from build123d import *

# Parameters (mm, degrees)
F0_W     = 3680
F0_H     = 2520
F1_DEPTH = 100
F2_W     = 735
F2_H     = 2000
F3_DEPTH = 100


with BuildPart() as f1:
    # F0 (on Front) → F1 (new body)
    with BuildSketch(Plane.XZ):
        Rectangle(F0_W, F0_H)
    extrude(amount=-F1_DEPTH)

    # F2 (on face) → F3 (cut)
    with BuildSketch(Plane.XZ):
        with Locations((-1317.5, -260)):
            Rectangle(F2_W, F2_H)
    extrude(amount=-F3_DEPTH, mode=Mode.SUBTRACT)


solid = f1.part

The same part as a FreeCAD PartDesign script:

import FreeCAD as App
import Part
import Sketcher

doc = App.newDocument("Part")
body = doc.addObject("PartDesign::Body", "Body")

sketch1 = body.newObject("Sketcher::SketchObject", "Sketch")
sketch1.AttachmentSupport = (doc.getObject("XZ_Plane"), [""])
sketch1.MapMode = "FlatFace"
sketch1.addGeometry(Part.LineSegment(App.Vector(-1840, 1260, 0), App.Vector(-1840, -1260, 0)), False)
sketch1.addGeometry(Part.LineSegment(App.Vector(-1840, -1260, 0), App.Vector(1840, -1260, 0)), False)
sketch1.addGeometry(Part.LineSegment(App.Vector(1840, -1260, 0), App.Vector(1840, 1260, 0)), False)
sketch1.addGeometry(Part.LineSegment(App.Vector(1840, 1260, 0), App.Vector(-1840, 1260, 0)), False)
sketch1.addConstraint(Sketcher.Constraint("Coincident", 0, 2, 1, 1))
sketch1.addConstraint(Sketcher.Constraint("Coincident", 1, 2, 2, 1))
sketch1.addConstraint(Sketcher.Constraint("Coincident", 2, 2, 3, 1))
sketch1.addConstraint(Sketcher.Constraint("Coincident", 3, 2, 0, 1))
sketch1.addConstraint(Sketcher.Constraint("Vertical", 0))
sketch1.addConstraint(Sketcher.Constraint("Horizontal", 1))
sketch1.addConstraint(Sketcher.Constraint("Vertical", 2))
sketch1.addConstraint(Sketcher.Constraint("Horizontal", 3))
sketch1.addConstraint(Sketcher.Constraint("Symmetric", 0, 2, 2, 2, -1, 1))
sketch1.addConstraint(Sketcher.Constraint("DistanceX", 1, 1, 1, 2, 3680.0))
sketch1.addConstraint(Sketcher.Constraint("DistanceY", 0, 2, 0, 1, 2520.0))
pad1 = body.newObject("PartDesign::Pad", "Pad")
pad1.Profile = sketch1
pad1.Length = 100
pad1.Reversed = True

sketch2 = body.newObject("Sketcher::SketchObject", "Sketch001")
sketch2.AttachmentSupport = (doc.getObject("XZ_Plane"), [""])
sketch2.MapMode = "FlatFace"
sketch2.addGeometry(Part.LineSegment(App.Vector(-1685, 740, 0), App.Vector(-1685, -1260, 0)), False)
sketch2.addGeometry(Part.LineSegment(App.Vector(-1685, -1260, 0), App.Vector(-950, -1260, 0)), False)
sketch2.addGeometry(Part.LineSegment(App.Vector(-950, -1260, 0), App.Vector(-950, 740, 0)), False)
sketch2.addGeometry(Part.LineSegment(App.Vector(-950, 740, 0), App.Vector(-1685, 740, 0)), False)
sketch2.addConstraint(Sketcher.Constraint("Coincident", 0, 2, 1, 1))
sketch2.addConstraint(Sketcher.Constraint("Coincident", 1, 2, 2, 1))
sketch2.addConstraint(Sketcher.Constraint("Coincident", 2, 2, 3, 1))
sketch2.addConstraint(Sketcher.Constraint("Coincident", 3, 2, 0, 1))
sketch2.addConstraint(Sketcher.Constraint("Vertical", 0))
sketch2.addConstraint(Sketcher.Constraint("Horizontal", 1))
sketch2.addConstraint(Sketcher.Constraint("Vertical", 2))
sketch2.addConstraint(Sketcher.Constraint("Horizontal", 3))
sketch2.addConstraint(Sketcher.Constraint("DistanceX", 1, 1, 1, 2, 735.0))
sketch2.addConstraint(Sketcher.Constraint("DistanceY", 0, 2, 0, 1, 2000.0))
sketch2.addConstraint(Sketcher.Constraint("DistanceX", 0, 2, -1, 1, 1685.0))
sketch2.addConstraint(Sketcher.Constraint("DistanceY", 0, 2, -1, 1, 1260.0))
pocket1 = body.newObject("PartDesign::Pocket", "Pocket")
pocket1.Profile = sketch2
pocket1.Length = 100

doc.recompute()
